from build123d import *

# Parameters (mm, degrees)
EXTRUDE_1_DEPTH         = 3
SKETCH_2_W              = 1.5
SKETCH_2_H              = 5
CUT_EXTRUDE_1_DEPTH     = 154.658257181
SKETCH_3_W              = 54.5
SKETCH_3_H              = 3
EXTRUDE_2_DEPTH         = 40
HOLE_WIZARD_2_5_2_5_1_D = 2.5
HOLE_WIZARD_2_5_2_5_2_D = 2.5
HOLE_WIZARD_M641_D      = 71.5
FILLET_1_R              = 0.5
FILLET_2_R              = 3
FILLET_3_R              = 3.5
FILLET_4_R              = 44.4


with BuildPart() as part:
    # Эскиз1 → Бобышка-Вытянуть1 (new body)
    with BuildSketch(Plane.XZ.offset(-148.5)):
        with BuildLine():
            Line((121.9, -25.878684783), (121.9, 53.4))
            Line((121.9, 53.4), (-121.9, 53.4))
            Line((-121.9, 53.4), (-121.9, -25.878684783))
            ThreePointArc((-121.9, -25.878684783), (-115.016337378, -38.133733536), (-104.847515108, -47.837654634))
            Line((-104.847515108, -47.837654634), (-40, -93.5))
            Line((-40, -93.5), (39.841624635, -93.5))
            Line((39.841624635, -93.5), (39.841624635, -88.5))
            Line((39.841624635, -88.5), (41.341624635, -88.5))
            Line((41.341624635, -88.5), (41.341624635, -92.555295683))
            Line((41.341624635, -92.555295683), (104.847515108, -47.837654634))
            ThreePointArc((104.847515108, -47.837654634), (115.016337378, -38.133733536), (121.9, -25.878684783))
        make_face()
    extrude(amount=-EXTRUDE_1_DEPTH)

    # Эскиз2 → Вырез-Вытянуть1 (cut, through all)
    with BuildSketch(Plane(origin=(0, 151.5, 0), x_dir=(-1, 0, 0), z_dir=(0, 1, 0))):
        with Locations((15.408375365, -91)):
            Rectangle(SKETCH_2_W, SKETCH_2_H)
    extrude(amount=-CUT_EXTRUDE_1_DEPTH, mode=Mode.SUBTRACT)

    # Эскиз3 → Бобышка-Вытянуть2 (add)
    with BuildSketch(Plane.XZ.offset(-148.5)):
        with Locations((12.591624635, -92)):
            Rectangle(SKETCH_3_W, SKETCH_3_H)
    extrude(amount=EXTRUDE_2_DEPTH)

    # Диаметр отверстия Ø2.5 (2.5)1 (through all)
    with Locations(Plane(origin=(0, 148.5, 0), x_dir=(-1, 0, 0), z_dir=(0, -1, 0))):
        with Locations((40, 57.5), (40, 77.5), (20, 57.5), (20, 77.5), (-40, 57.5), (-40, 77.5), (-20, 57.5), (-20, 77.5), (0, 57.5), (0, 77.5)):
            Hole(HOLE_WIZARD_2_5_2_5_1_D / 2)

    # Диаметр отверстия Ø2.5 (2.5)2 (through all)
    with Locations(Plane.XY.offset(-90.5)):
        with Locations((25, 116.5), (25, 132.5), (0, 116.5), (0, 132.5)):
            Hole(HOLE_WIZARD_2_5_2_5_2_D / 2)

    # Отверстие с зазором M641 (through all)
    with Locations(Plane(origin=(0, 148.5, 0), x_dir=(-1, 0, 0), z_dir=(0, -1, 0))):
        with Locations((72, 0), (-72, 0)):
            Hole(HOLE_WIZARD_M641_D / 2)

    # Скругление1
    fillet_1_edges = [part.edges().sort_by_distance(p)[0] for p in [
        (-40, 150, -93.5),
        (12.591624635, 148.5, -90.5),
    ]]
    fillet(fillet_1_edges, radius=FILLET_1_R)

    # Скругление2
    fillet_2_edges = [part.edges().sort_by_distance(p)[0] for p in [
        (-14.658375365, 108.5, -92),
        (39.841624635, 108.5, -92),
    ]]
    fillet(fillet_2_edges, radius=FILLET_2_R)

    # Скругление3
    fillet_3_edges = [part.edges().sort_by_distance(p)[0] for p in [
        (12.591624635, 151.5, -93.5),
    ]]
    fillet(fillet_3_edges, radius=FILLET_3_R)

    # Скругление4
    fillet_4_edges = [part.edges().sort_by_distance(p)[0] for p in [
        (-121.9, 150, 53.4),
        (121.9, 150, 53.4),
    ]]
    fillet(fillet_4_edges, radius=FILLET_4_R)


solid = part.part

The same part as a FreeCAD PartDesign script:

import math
import FreeCAD as App
import Part
import Sketcher
from FreeCAD import Vector


def edges_at(feature, points):
    """Names of the edges that pass closest to the given points."""
    edges = feature.Shape.Edges
    near = lambda p: min(range(len(edges)), key=lambda i: edges[i].distToShape(Part.Vertex(*p))[0])
    return sorted({f"Edge{near(p) + 1}" for p in points})

doc = App.newDocument("Part")
params = doc.addObject("Spreadsheet::Sheet", "Params")
for row, (alias, value) in enumerate([
    ("sketch1_radius", "47.5 mm"),
    ("sketch1_height", "5 mm"),
    ("sketch1_width", "243.8 mm"),
    ("sketch1_width2", "1.5 mm"),
    ("pad1_length", "3 mm"),
    ("sketch2_height", "5 mm"),
    ("sketch2_width", "1.5 mm"),
    ("sketch3_height", "3 mm"),
    ("sketch3_width", "54.5 mm"),
    ("pad2_length", "40 mm"),
    ("sketch4_diameter", "2.5 mm"),
    ("hole_diameter", "2.5 mm"),
    ("sketch5_diameter", "2.5 mm"),
    ("hole2_diameter", "2.5 mm"),
    ("sketch6_diameter", "71.5 mm"),
    ("hole3_diameter", "71.5 mm"),
    ("fillet_radius", "0.5 mm"),
    ("fillet2_radius", "3 mm"),
    ("fillet3_radius", "3.5 mm"),
    ("fillet4_radius", "44.4 mm"),
], start=1):
    params.set(f"A{row}", alias)
    params.set(f"B{row}", "=" + value)
    params.setAlias(f"B{row}", alias)

body = doc.addObject("PartDesign::Body", "Body")

# Sketch on XZ plane
sketch1 = doc.addObject("Sketcher::SketchObject", "Sketch")
body.addObject(sketch1)
sketch1.AttachmentSupport = (doc.XZ_Plane, [""])
sketch1.MapMode = "FlatFace"
sketch1.AttachmentOffset = App.Placement(Vector(0, 0, -148.5), App.Rotation())
sketch1.addGeometry([
    Part.LineSegment(Vector(121.9, -25.9, 0), Vector(121.9, 53.4, 0)),  # 0
    Part.LineSegment(Vector(121.9, 53.4, 0), Vector(-121.9, 53.4, 0)),  # 1
    Part.LineSegment(Vector(-121.9, 53.4, 0), Vector(-121.9, -25.9, 0)),  # 2
    Part.ArcOfCircle(Part.Circle(Vector(-77.5, -9, 0), Vector(0, 0, 1), 47.5), math.radians(-159), math.radians(-125)),  # 3
    Part.LineSegment(Vector(-104.8, -47.8, 0), Vector(-40, -93.5, 0)),  # 4
    Part.LineSegment(Vector(-40, -93.5, 0), Vector(39.8, -93.5, 0)),  # 5
    Part.LineSegment(Vector(39.8, -93.5, 0), Vector(39.8, -88.5, 0)),  # 6
    Part.LineSegment(Vector(39.8, -88.5, 0), Vector(41.3, -88.5, 0)),  # 7
    Part.LineSegment(Vector(41.3, -88.5, 0), Vector(41.3, -92.6, 0)),  # 8
    Part.LineSegment(Vector(41.3, -92.6, 0), Vector(104.8, -47.8, 0)),  # 9
    Part.ArcOfCircle(Part.Circle(Vector(77.5, -9, 0), Vector(0, 0, 1), 47.5), math.radians(-55), math.radians(-21)),  # 10
], False)
sketch1.addConstraint([
    Sketcher.Constraint("Coincident", 0, 2, 1, 1),
    Sketcher.Constraint("Coincident", 1, 2, 2, 1),
    Sketcher.Constraint("Coincident", 2, 2, 3, 1),
    Sketcher.Constraint("Tangent", 3, 2, 4, 1),
    Sketcher.Constraint("Coincident", 4, 2, 5, 1),
    Sketcher.Constraint("Coincident", 5, 2, 6, 1),
    Sketcher.Constraint("Coincident", 6, 2, 7, 1),
    Sketcher.Constraint("Coincident", 7, 2, 8, 1),
    Sketcher.Constraint("Coincident", 8, 2, 9, 1),
    Sketcher.Constraint("Tangent", 9, 2, 10, 1),
    Sketcher.Constraint("Coincident", 10, 2, 0, 1),
    Sketcher.Constraint("Vertical", 0),
    Sketcher.Constraint("Horizontal", 1),
    Sketcher.Constraint("Vertical", 2),
    Sketcher.Constraint("Horizontal", 5),
    Sketcher.Constraint("Vertical", 6),
    Sketcher.Constraint("Horizontal", 7),
    Sketcher.Constraint("Vertical", 8),
    Sketcher.Constraint("Equal", 3, 10),
    Sketcher.Constraint("Symmetric", 3, 3, 10, 3, -2),
    Sketcher.Constraint("Horizontal", 3, 2, 9, 2),
    Sketcher.Constraint("Horizontal", 2, 2, 10, 2),
    Sketcher.Constraint("Radius", 3, 47.5),
    Sketcher.Constraint("DistanceY", 6, 1, 6, 2, 5.0),
    Sketcher.Constraint("DistanceX", 1, 2, 1, 1, 243.8),
    Sketcher.Constraint("DistanceX", 7, 1, 7, 2, 1.5),
    Sketcher.Constraint("DistanceY", 3, 3, -1, 1, 9.0),
    Sketcher.Constraint("DistanceX", 4, 2, -1, 1, 40.0),
    Sketcher.Constraint("DistanceX", 3, 3, 10, 3, 155.0),
    Sketcher.Constraint("DistanceY", -1, 1, 0, 2, 53.4),
    Sketcher.Constraint("DistanceY", 4, 2, -1, 1, 93.5),
    Sketcher.Constraint("DistanceX", 5, 1, 5, 2, 79.841625),
])
sketch1.setExpression("Constraints[22]", "Params.sketch1_radius")
sketch1.setExpression("Constraints[23]", "Params.sketch1_height")
sketch1.setExpression("Constraints[24]", "Params.sketch1_width")
sketch1.setExpression("Constraints[25]", "Params.sketch1_width2")
pad1 = doc.addObject("PartDesign::Pad", "Pad")
body.addObject(pad1)
pad1.Profile = sketch1
pad1.setExpression("Length", "Params.pad1_length")
pad1.Reversed = True

# Sketch on XZ plane
sketch2 = doc.addObject("Sketcher::SketchObject", "Sketch001")
body.addObject(sketch2)
sketch2.AttachmentSupport = (doc.XZ_Plane, [""])
sketch2.MapMode = "FlatFace"
sketch2.AttachmentOffset = App.Placement(Vector(0, 0, -151.5), App.Rotation())
sketch2.addGeometry([
    Part.LineSegment(Vector(-14.7, -88.5, 0), Vector(-14.7, -93.5, 0)),
    Part.LineSegment(Vector(-14.7, -93.5, 0), Vector(-16.2, -93.5, 0)),
    Part.LineSegment(Vector(-16.2, -93.5, 0), Vector(-16.2, -88.5, 0)),
    Part.LineSegment(Vector(-16.2, -88.5, 0), Vector(-14.7, -88.5, 0)),
], False)
sketch2.addConstraint([
    Sketcher.Constraint("Coincident", 0, 2, 1, 1),
    Sketcher.Constraint("Coincident", 1, 2, 2, 1),
    Sketcher.Constraint("Coincident", 2, 2, 3, 1),
    Sketcher.Constraint("Coincident", 3, 2, 0, 1),
    Sketcher.Constraint("Vertical", 0),
    Sketcher.Constraint("Horizontal", 1),
    Sketcher.Constraint("Vertical", 2),
    Sketcher.Constraint("Horizontal", 3),
    Sketcher.Constraint("DistanceY", 0, 2, 0, 1, 5.0),
    Sketcher.Constraint("DistanceX", 1, 2, 1, 1, 1.5),
    Sketcher.Constraint("DistanceY", 0, 2, -1, 1, 93.5),
    Sketcher.Constraint("DistanceX", 0, 2, -1, 1, 14.658375),
])
sketch2.setExpression("Constraints[8]", "Params.sketch2_height")
sketch2.setExpression("Constraints[9]", "Params.sketch2_width")
pocket1 = doc.addObject("PartDesign::Pocket", "Pocket")
body.addObject(pocket1)
pocket1.Profile = sketch2
pocket1.Type = "ThroughAll"
pocket1.Reversed = True

# Sketch on XZ plane
sketch3 = doc.addObject("Sketcher::SketchObject", "Sketch002")
body.addObject(sketch3)
sketch3.AttachmentSupport = (doc.XZ_Plane, [""])
sketch3.MapMode = "FlatFace"
sketch3.AttachmentOffset = App.Placement(Vector(0, 0, -148.5), App.Rotation())
sketch3.addGeometry([
    Part.LineSegment(Vector(-14.7, -90.5, 0), Vector(-14.7, -93.5, 0)),
    Part.LineSegment(Vector(-14.7, -93.5, 0), Vector(39.8, -93.5, 0)),
    Part.LineSegment(Vector(39.8, -93.5, 0), Vector(39.8, -90.5, 0)),
    Part.LineSegment(Vector(39.8, -90.5, 0), Vector(-14.7, -90.5, 0)),
], False)
sketch3.addConstraint([
    Sketcher.Constraint("Coincident", 0, 2, 1, 1),
    Sketcher.Constraint("Coincident", 1, 2, 2, 1),
    Sketcher.Constraint("Coincident", 2, 2, 3, 1),
    Sketcher.Constraint("Coincident", 3, 2, 0, 1),
    Sketcher.Constraint("Vertical", 0),
    Sketcher.Constraint("Horizontal", 1),
    Sketcher.Constraint("Vertical", 2),
    Sketcher.Constraint("Horizontal", 3),
    Sketcher.Constraint("DistanceY", 0, 2, 0, 1, 3.0),
    Sketcher.Constraint("DistanceX", 1, 1, 1, 2, 54.5),
    Sketcher.Constraint("DistanceY", 0, 2, -1, 1, 93.5),
    Sketcher.Constraint("DistanceX", 0, 2, -1, 1, 14.658375),
])
sketch3.setExpression("Constraints[8]", "Params.sketch3_height")
sketch3.setExpression("Constraints[9]", "Params.sketch3_width")
pad2 = doc.addObject("PartDesign::Pad", "Pad001")
body.addObject(pad2)
pad2.Profile = sketch3
pad2.setExpression("Length", "Params.pad2_length")

# Sketch on XZ plane
sketch4 = doc.addObject("Sketcher::SketchObject", "Sketch003")
body.addObject(sketch4)
sketch4.AttachmentSupport = (doc.XZ_Plane, [""])
sketch4.MapMode = "FlatFace"
sketch4.AttachmentOffset = App.Placement(Vector(0, 0, -148.5), App.Rotation())
sketch4.addGeometry([
    Part.Circle(Vector(-40, -57.5, 0), Vector(0, 0, 1), 1.2),  # 0
    Part.Circle(Vector(-40, -77.5, 0), Vector(0, 0, 1), 1.2),  # 1
    Part.Circle(Vector(-20, -57.5, 0), Vector(0, 0, 1), 1.2),  # 2
    Part.Circle(Vector(-20, -77.5, 0), Vector(0, 0, 1), 1.2),  # 3
    Part.Circle(Vector(40, -57.5, 0), Vector(0, 0, 1), 1.2),  # 4
    Part.Circle(Vector(40, -77.5, 0), Vector(0, 0, 1), 1.2),  # 5
    Part.Circle(Vector(20, -57.5, 0), Vector(0, 0, 1), 1.2),  # 6
    Part.Circle(Vector(20, -77.5, 0), Vector(0, 0, 1), 1.2),  # 7
    Part.Circle(Vector(0, -57.5, 0), Vector(0, 0, 1), 1.2),  # 8
    Part.Circle(Vector(0, -77.5, 0), Vector(0, 0, 1), 1.2),  # 9
], False)
sketch4.addConstraint([
    Sketcher.Constraint("Equal", 0, 1),
    Sketcher.Constraint("Equal", 1, 2),
    Sketcher.Constraint("Equal", 2, 3),
    Sketcher.Constraint("Equal", 3, 4),
    Sketcher.Constraint("Equal", 4, 5),
    Sketcher.Constraint("Equal", 5, 6),
    Sketcher.Constraint("Equal", 6, 7),
    Sketcher.Constraint("Equal", 7, 8),
    Sketcher.Constraint("Equal", 8, 9),
    Sketcher.Constraint("Symmetric", 0, 3, 4, 3, -2),
    Sketcher.Constraint("Symmetric", 1, 3, 5, 3, -2),
    Sketcher.Constraint("Symmetric", 2, 3, 6, 3, -2),
    Sketcher.Constraint("Symmetric", 3, 3, 7, 3, -2),
    Sketcher.Constraint("PointOnObject", 8, 3, -2),
    Sketcher.Constraint("PointOnObject", 9, 3, -2),
    Sketcher.Constraint("Horizontal", 0, 3, 2, 3),
    Sketcher.Constraint("Horizontal", 1, 3, 3, 3),
    Sketcher.Constraint("Horizontal", 6, 3, 8, 3),
    Sketcher.Constraint("Horizontal", 7, 3, 9, 3),
    Sketcher.Constraint("Vertical", 0, 3, 1, 3),
    Sketcher.Constraint("Vertical", 2, 3, 3, 3),
    Sketcher.Constraint("Diameter", 0, 2.5),
    Sketcher.Constraint("DistanceX", 0, 3, -1, 1, 40.0),
    Sketcher.Constraint("DistanceX", 2, 3, -1, 1, 20.0),
    Sketcher.Constraint("DistanceY", 1, 3, 0, 3, 20.0),
    Sketcher.Constraint("DistanceY", 0, 3, -1, 1, 57.5),
])
sketch4.setExpression("Constraints[21]", "Params.sketch4_diameter")
doc.recompute()
hole = doc.addObject("PartDesign::Hole", "Hole")
body.addObject(hole)
hole.Profile = sketch4
hole.ThreadType = "None"
hole.setExpression("Diameter", "Params.hole_diameter")
hole.DepthType = "ThroughAll"

# Sketch on XY plane
sketch5 = doc.addObject("Sketcher::SketchObject", "Sketch004")
body.addObject(sketch5)
sketch5.AttachmentSupport = (doc.XY_Plane, [""])
sketch5.MapMode = "FlatFace"
sketch5.AttachmentOffset = App.Placement(Vector(0, 0, -90.5), App.Rotation())
sketch5.addGeometry([
    Part.Circle(Vector(25, 116.5, 0), Vector(0, 0, 1), 1.2),
    Part.Circle(Vector(25, 132.5, 0), Vector(0, 0, 1), 1.2),
    Part.Circle(Vector(0, 116.5, 0), Vector(0, 0, 1), 1.2),
    Part.Circle(Vector(0, 132.5, 0), Vector(0, 0, 1), 1.2),
], False)
sketch5.addConstraint([
    Sketcher.Constraint("Equal", 0, 1),
    Sketcher.Constraint("Equal", 1, 2),
    Sketcher.Constraint("Equal", 2, 3),
    Sketcher.Constraint("PointOnObject", 2, 3, -2),
    Sketcher.Constraint("PointOnObject", 3, 3, -2),
    Sketcher.Constraint("Horizontal", 0, 3, 2, 3),
    Sketcher.Constraint("Horizontal", 1, 3, 3, 3),
    Sketcher.Constraint("Vertical", 0, 3, 1, 3),
    Sketcher.Constraint("Diameter", 0, 2.5),
    Sketcher.Constraint("DistanceX", -1, 1, 0, 3, 25.0),
    Sketcher.Constraint("DistanceY", 0, 3, 1, 3, 16.0),
    Sketcher.Constraint("DistanceY", -1, 1, 0, 3, 116.5),
])
sketch5.setExpression("Constraints[8]", "Params.sketch5_diameter")
doc.recompute()
hole2 = doc.addObject("PartDesign::Hole", "Hole001")
body.addObject(hole2)
hole2.Profile = sketch5
hole2.ThreadType = "None"
hole2.setExpression("Diameter", "Params.hole2_diameter")
hole2.DepthType = "ThroughAll"

# Sketch on XZ plane
sketch6 = doc.addObject("Sketcher::SketchObject", "Sketch005")
body.addObject(sketch6)
sketch6.AttachmentSupport = (doc.XZ_Plane, [""])
sketch6.MapMode = "FlatFace"
sketch6.AttachmentOffset = App.Placement(Vector(0, 0, -148.5), App.Rotation())
sketch6.addGeometry([
    Part.Circle(Vector(-72, 0, 0), Vector(0, 0, 1), 36),
    Part.Circle(Vector(72, 0, 0), Vector(0, 0, 1), 36),
], False)
sketch6.addConstraint([
    Sketcher.Constraint("Equal", 0, 1),
    Sketcher.Constraint("Symmetric", 0, 3, 1, 3, -1, 1),
    Sketcher.Constraint("PointOnObject", 0, 3, -1),
    Sketcher.Constraint("Diameter", 0, 71.5),
    Sketcher.Constraint("DistanceX", 0, 3, -1, 1, 72.0),
])
sketch6.setExpression("Constraints[3]", "Params.sketch6_diameter")
doc.recompute()
hole3 = doc.addObject("PartDesign::Hole", "Hole002")
body.addObject(hole3)
hole3.Profile = sketch6
hole3.ThreadType = "None"
hole3.setExpression("Diameter", "Params.hole3_diameter")
hole3.DepthType = "ThroughAll"
doc.recompute()

fillet = doc.addObject("PartDesign::Fillet", "Fillet")
body.addObject(fillet)
fillet.Base = (hole3, edges_at(hole3, [(-40, 150, -93.5), (12.592, 148.5, -90.5)]))
fillet.setExpression("Radius", "Params.fillet_radius")
doc.recompute()

fillet2 = doc.addObject("PartDesign::Fillet", "Fillet001")
body.addObject(fillet2)
fillet2.Base = (fillet, edges_at(fillet, [(-14.658, 108.5, -92), (39.842, 108.5, -92)]))
fillet2.setExpression("Radius", "Params.fillet2_radius")
doc.recompute()

fillet3 = doc.addObject("PartDesign::Fillet", "Fillet002")
body.addObject(fillet3)
fillet3.Base = (fillet2, edges_at(fillet2, [(12.592, 151.5, -93.5)]))
fillet3.setExpression("Radius", "Params.fillet3_radius")
doc.recompute()

fillet4 = doc.addObject("PartDesign::Fillet", "Fillet003")
body.addObject(fillet4)
fillet4.Base = (fillet3, edges_at(fillet3, [(-121.9, 150, 53.4), (121.9, 150, 53.4)]))
fillet4.setExpression("Radius", "Params.fillet4_radius")

doc.recompute()
